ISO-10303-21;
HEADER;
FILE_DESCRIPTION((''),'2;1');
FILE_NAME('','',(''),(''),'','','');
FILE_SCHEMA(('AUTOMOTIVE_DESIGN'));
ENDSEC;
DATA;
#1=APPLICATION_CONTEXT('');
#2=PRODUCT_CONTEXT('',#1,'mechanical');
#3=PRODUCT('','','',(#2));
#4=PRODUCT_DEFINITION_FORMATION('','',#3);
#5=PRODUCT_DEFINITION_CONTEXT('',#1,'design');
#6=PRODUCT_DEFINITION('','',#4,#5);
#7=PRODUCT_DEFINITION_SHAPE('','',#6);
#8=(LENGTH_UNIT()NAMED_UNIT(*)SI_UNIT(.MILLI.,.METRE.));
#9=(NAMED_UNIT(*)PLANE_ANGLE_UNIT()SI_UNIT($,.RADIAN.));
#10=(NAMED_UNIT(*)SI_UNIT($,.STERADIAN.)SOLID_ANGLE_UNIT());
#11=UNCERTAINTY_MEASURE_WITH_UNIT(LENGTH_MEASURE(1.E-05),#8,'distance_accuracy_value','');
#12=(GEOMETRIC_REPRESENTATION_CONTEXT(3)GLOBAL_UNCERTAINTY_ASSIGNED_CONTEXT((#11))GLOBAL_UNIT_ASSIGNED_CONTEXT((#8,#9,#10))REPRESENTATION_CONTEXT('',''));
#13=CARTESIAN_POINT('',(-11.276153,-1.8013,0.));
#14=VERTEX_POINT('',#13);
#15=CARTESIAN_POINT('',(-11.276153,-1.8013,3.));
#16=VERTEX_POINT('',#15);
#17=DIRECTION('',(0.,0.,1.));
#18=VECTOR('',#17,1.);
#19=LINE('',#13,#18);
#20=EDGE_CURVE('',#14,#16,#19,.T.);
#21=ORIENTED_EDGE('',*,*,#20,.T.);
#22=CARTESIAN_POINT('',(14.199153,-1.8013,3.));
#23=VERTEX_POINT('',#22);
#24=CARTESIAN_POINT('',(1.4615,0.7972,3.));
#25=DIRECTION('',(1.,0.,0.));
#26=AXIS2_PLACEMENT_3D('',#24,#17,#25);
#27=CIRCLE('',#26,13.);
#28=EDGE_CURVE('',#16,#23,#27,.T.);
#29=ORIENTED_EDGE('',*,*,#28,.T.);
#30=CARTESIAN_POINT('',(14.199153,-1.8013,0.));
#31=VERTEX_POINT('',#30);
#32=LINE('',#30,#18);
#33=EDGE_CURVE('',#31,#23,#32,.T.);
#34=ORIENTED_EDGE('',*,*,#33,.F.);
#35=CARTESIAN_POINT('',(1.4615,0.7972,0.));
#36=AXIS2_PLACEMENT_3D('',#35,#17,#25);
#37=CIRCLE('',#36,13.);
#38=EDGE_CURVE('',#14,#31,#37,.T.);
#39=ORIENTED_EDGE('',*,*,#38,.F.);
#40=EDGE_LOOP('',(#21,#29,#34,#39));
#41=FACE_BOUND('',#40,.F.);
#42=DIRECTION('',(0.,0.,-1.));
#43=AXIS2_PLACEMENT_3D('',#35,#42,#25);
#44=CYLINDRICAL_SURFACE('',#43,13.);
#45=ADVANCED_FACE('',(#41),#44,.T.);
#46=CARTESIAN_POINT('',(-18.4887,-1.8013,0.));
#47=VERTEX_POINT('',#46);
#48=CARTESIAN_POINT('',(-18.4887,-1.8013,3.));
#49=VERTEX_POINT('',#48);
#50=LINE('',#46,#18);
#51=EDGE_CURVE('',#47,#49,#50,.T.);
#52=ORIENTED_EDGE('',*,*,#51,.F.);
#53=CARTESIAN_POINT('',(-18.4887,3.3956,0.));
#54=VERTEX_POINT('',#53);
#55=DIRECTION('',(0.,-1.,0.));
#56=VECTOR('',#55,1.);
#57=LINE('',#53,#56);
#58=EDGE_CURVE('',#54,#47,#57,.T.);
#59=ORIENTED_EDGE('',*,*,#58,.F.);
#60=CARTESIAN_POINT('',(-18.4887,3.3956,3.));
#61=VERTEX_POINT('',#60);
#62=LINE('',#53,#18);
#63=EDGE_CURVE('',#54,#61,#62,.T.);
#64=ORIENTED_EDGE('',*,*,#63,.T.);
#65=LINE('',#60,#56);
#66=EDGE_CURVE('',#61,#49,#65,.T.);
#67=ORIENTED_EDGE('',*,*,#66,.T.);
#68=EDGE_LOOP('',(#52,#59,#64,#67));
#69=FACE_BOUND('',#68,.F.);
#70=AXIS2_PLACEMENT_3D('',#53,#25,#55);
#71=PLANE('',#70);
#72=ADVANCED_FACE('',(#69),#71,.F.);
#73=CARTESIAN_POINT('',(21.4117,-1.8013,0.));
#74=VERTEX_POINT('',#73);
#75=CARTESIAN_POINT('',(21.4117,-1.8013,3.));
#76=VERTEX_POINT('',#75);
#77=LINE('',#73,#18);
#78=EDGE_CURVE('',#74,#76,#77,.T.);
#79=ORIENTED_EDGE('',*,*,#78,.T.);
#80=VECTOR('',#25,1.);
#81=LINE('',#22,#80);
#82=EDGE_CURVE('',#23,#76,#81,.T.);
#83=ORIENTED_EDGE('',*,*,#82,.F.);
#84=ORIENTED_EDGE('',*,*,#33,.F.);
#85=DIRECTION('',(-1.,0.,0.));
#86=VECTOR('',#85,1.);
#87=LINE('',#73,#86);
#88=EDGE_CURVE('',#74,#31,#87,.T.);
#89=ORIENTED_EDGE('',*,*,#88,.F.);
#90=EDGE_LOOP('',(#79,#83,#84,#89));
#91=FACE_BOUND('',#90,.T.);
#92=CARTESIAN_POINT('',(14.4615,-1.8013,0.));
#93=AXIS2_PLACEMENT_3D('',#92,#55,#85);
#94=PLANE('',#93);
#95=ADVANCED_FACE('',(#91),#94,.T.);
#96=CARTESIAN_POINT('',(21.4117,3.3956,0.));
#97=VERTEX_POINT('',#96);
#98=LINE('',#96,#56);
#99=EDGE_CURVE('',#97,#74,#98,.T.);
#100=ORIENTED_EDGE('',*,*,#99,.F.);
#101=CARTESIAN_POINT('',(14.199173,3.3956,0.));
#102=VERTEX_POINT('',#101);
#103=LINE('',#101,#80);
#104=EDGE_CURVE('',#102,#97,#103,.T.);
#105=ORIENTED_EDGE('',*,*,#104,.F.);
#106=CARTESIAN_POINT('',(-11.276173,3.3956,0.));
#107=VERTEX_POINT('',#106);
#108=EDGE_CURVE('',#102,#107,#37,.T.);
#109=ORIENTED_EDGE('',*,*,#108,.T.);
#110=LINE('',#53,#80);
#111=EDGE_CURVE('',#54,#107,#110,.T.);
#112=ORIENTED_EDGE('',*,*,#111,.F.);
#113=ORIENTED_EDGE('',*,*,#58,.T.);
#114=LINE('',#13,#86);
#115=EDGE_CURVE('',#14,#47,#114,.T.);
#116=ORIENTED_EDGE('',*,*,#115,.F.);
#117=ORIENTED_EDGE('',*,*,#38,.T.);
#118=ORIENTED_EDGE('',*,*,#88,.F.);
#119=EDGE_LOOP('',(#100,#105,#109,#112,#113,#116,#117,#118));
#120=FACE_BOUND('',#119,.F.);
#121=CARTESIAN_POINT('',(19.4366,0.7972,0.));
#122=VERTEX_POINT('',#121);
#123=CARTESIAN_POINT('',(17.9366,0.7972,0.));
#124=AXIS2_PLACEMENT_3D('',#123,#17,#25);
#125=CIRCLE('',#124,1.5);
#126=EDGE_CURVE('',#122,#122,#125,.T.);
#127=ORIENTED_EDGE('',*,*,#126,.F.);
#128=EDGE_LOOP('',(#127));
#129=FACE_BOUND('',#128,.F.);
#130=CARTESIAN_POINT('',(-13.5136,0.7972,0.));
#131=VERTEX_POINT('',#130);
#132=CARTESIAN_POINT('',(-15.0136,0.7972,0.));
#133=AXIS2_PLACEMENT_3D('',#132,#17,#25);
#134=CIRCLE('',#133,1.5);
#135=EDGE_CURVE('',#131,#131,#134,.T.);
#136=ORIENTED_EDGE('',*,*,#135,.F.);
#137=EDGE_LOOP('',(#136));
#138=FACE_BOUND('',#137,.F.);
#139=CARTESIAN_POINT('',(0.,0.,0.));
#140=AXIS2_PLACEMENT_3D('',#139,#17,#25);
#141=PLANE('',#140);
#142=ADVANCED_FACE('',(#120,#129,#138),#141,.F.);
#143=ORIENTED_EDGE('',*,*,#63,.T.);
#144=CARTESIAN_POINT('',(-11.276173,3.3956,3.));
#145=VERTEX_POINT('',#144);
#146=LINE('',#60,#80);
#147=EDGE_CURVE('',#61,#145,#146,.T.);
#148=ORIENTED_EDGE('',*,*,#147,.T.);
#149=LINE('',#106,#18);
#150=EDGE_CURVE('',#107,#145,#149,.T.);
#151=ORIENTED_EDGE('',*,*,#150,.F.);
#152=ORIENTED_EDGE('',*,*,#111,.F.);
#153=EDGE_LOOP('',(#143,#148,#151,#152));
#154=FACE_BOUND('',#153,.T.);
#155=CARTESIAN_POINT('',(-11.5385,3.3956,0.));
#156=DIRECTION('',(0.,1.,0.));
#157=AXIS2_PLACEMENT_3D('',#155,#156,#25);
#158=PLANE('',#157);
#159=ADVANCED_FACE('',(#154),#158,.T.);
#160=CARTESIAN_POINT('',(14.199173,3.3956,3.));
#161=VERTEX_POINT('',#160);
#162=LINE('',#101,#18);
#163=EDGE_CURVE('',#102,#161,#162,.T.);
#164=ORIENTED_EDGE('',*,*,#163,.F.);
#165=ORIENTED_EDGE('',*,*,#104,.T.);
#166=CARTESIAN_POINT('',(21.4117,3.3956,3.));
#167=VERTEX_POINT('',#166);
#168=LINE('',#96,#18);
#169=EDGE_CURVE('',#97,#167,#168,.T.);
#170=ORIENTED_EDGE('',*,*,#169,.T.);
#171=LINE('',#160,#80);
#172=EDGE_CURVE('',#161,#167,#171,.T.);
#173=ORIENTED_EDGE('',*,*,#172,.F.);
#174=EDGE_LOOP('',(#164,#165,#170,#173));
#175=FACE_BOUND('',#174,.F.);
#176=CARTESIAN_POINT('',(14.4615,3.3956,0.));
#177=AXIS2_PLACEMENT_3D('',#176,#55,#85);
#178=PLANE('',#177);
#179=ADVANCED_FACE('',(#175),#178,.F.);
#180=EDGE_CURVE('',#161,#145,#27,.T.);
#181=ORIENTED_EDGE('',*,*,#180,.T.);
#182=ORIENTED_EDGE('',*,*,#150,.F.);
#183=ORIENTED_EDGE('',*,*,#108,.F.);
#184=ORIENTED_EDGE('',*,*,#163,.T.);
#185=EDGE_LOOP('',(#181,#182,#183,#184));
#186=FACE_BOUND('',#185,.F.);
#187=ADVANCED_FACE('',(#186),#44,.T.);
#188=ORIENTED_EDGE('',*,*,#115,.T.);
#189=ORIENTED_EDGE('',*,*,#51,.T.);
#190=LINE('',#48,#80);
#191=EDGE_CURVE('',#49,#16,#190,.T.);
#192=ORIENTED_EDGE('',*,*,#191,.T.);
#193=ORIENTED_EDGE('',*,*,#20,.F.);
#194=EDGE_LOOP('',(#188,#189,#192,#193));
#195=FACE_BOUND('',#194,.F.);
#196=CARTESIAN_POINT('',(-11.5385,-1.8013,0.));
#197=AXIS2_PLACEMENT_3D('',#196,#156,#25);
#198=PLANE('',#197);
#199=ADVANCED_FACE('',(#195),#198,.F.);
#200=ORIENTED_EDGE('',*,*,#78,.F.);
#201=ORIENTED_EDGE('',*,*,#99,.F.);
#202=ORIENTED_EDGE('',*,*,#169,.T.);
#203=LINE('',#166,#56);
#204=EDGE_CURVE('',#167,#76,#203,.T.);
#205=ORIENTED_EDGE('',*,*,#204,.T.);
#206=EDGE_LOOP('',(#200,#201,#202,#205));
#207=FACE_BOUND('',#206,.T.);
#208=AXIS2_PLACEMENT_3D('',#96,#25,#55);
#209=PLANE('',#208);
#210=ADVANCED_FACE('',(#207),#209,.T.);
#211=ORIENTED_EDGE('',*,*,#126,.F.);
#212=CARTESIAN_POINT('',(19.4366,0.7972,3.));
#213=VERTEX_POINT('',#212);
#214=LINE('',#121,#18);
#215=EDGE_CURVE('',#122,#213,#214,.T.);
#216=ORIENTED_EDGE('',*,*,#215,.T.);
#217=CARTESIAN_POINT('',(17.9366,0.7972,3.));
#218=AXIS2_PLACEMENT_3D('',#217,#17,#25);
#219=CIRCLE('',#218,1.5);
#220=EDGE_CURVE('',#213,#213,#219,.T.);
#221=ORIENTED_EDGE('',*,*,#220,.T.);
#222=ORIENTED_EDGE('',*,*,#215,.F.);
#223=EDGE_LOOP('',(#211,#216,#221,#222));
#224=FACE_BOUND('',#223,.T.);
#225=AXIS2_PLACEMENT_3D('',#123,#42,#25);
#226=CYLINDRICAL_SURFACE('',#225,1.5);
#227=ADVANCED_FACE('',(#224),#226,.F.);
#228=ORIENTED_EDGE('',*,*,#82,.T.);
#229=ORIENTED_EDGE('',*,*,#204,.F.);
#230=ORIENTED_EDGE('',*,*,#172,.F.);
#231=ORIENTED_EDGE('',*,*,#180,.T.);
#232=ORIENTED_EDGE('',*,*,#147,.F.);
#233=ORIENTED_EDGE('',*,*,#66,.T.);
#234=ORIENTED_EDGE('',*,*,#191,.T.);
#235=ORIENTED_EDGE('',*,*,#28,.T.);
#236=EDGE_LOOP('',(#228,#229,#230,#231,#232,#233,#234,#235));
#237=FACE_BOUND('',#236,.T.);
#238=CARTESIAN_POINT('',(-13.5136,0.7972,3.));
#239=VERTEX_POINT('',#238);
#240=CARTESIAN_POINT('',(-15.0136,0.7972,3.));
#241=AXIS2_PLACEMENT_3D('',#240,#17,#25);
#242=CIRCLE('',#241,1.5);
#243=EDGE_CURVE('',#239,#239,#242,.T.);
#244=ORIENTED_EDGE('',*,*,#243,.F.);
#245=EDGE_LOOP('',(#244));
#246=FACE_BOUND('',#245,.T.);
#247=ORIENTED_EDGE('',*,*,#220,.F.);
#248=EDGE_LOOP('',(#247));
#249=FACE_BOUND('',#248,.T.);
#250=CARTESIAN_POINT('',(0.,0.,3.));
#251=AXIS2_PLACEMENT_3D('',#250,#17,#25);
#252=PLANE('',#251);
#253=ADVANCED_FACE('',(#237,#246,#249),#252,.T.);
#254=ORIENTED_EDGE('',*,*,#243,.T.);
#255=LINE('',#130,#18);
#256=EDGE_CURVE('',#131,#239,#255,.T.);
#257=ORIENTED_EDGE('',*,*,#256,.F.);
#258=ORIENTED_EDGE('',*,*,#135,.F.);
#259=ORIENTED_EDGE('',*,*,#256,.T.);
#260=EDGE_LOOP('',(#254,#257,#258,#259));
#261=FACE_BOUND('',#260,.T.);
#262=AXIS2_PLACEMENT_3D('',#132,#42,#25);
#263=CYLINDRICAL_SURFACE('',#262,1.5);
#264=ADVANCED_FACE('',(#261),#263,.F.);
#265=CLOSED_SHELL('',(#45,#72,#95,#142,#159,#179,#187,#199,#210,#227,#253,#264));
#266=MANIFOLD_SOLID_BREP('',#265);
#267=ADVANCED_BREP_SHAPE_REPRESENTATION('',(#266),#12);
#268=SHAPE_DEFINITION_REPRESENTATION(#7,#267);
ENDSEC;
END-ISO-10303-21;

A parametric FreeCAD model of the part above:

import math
import FreeCAD as App
import Part
import Sketcher

V = App.Vector

doc = App.newDocument("Part")
body = doc.addObject("PartDesign::Body", "Body")

sketch1 = doc.addObject("Sketcher::SketchObject", "Sketch")
body.addObject(sketch1)
sketch1.AttachmentSupport = (doc.XY_Plane, [""])
sketch1.MapMode = "FlatFace"
sketch1.addGeometry(Part.ArcOfCircle(Part.Circle(V(1.5, 0.8, 0), V(0, 0, 1), 13), math.radians(12), math.radians(168)), False)
sketch1.addGeometry(Part.LineSegment(V(-11.3, 3.4, 0), V(-18.5, 3.4, 0)), False)
sketch1.addGeometry(Part.LineSegment(V(-18.5, 3.4, 0), V(-18.5, -1.8, 0)), False)
sketch1.addGeometry(Part.LineSegment(V(-18.5, -1.8, 0), V(-11.3, -1.8, 0)), False)
sketch1.addGeometry(Part.ArcOfCircle(Part.Circle(V(1.5, 0.8, 0), V(0, 0, 1), 13), math.radians(-168), math.radians(-12)), False)
sketch1.addGeometry(Part.LineSegment(V(14.2, -1.8, 0), V(21.4, -1.8, 0)), False)
sketch1.addGeometry(Part.LineSegment(V(21.4, -1.8, 0), V(21.4, 3.4, 0)), False)
sketch1.addGeometry(Part.LineSegment(V(21.4, 3.4, 0), V(14.2, 3.4, 0)), False)
sketch1.addGeometry(Part.Circle(V(-15, 0.8, 0), V(0, 0, 1), 1.5), False)
sketch1.addGeometry(Part.Circle(V(17.9, 0.8, 0), V(0, 0, 1), 1.5), False)
sketch1.addConstraint(Sketcher.Constraint("Coincident", 0, 2, 1, 1))
sketch1.addConstraint(Sketcher.Constraint("Coincident", 1, 2, 2, 1))
sketch1.addConstraint(Sketcher.Constraint("Coincident", 2, 2, 3, 1))
sketch1.addConstraint(Sketcher.Constraint("Coincident", 3, 2, 4, 1))
sketch1.addConstraint(Sketcher.Constraint("Coincident", 4, 2, 5, 1))
sketch1.addConstraint(Sketcher.Constraint("Coincident", 5, 2, 6, 1))
sketch1.addConstraint(Sketcher.Constraint("Coincident", 6, 2, 7, 1))
sketch1.addConstraint(Sketcher.Constraint("Coincident", 7, 2, 0, 1))
sketch1.addConstraint(Sketcher.Constraint("Horizontal", 1))
sketch1.addConstraint(Sketcher.Constraint("Vertical", 2))
sketch1.addConstraint(Sketcher.Constraint("Horizontal", 3))
sketch1.addConstraint(Sketcher.Constraint("Horizontal", 5))
sketch1.addConstraint(Sketcher.Constraint("Vertical", 6))
sketch1.addConstraint(Sketcher.Constraint("Horizontal", 7))
sketch1.addConstraint(Sketcher.Constraint("Coincident", 4, 3, 0, 3))
sketch1.addConstraint(Sketcher.Constraint("Equal", 0, 4))
sketch1.addConstraint(Sketcher.Constraint("Equal", 8, 9))
sketch1.addConstraint(Sketcher.Constraint("Horizontal", 4, 3, 8, 3))
sketch1.addConstraint(Sketcher.Constraint("Horizontal", 8, 3, 9, 3))
sketch1.addConstraint(Sketcher.Constraint("Horizontal", 3, 2, 4, 2))
sketch1.addConstraint(Sketcher.Constraint("Horizontal", 1, 2, 6, 2))
sketch1.addConstraint(Sketcher.Constraint("Vertical", 0, 2, 3, 2))
sketch1.addConstraint(Sketcher.Constraint("Equal", 3, 5))
sketch1.addConstraint(Sketcher.Constraint("Diameter", 8, 3.0))
sketch1.addConstraint(Sketcher.Constraint("Radius", 0, 13.0))
sketch1.addConstraint(Sketcher.Constraint("DistanceY", 2, 2, 2, 1, 5.197))
sketch1.addConstraint(Sketcher.Constraint("DistanceX", 1, 2, 1, 1, 7.2125))
sketch1.addConstraint(Sketcher.Constraint("DistanceX", 8, 3, 0, 3, 16.475))
sketch1.addConstraint(Sketcher.Constraint("DistanceX", 0, 3, 9, 3, 16.475))
sketch1.addConstraint(Sketcher.Constraint("DistanceX", -1, 1, 0, 3, 1.4615))
sketch1.addConstraint(Sketcher.Constraint("DistanceY", -1, 1, 0, 3, 0.7972))
pad1 = doc.addObject("PartDesign::Pad", "Pad")
body.addObject(pad1)
pad1.Profile = sketch1
pad1.Length = 3

doc.recompute()
